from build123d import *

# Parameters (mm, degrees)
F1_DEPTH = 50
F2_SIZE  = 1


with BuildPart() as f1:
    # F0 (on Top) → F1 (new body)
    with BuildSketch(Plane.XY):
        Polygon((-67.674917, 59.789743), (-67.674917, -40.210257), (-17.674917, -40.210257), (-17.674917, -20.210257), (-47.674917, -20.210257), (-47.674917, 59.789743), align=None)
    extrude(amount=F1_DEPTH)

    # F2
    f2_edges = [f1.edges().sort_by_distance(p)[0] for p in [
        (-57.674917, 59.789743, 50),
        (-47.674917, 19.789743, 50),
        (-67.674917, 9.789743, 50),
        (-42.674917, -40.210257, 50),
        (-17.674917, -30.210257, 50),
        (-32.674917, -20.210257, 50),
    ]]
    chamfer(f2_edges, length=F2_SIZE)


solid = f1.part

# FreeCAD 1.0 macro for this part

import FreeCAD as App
import Part
import Sketcher


def edges_at(feature, points):
    """Names of the edges that pass closest to the given points."""
    edges = feature.Shape.Edges
    near = lambda p: min(range(len(edges)), key=lambda i: edges[i].distToShape(Part.Vertex(*p))[0])
    return sorted({f"Edge{near(p) + 1}" for p in points})

doc = App.newDocument("Part")
body = doc.addObject("PartDesign::Body", "Body")

# Sketch on XY plane
sketch1 = doc.addObject("Sketcher::SketchObject", "Sketch")
body.addObject(sketch1)
sketch1.AttachmentSupport = (doc.XY_Plane, [""])
sketch1.MapMode = "FlatFace"
sketch1.addGeometry([
    Part.LineSegment(App.Vector(-68, 60, 0), App.Vector(-68, -40, 0)),  # 0
    Part.LineSegment(App.Vector(-68, -40, 0), App.Vector(-18, -40, 0)),  # 1
    Part.LineSegment(App.Vector(-18, -40, 0), App.Vector(-18, -20, 0)),  # 2
    Part.LineSegment(App.Vector(-18, -20, 0), App.Vector(-48, -20, 0)),  # 3
    Part.LineSegment(App.Vector(-48, -20, 0), App.Vector(-48, 60, 0)),  # 4
    Part.LineSegment(App.Vector(-48, 60, 0), App.Vector(-68, 60, 0)),  # 5
], False)
sketch1.addConstraint([
    Sketcher.Constraint("Coincident", 0, 2, 1, 1),
    Sketcher.Constraint("Coincident", 1, 2, 2, 1),
    Sketcher.Constraint("Coincident", 2, 2, 3, 1),
    Sketcher.Constraint("Coincident", 3, 2, 4, 1),
    Sketcher.Constraint("Coincident", 4, 2, 5, 1),
    Sketcher.Constraint("Coincident", 5, 2, 0, 1),
    Sketcher.Constraint("Vertical", 0),
    Sketcher.Constraint("Horizontal", 1),
    Sketcher.Constraint("Vertical", 2),
    Sketcher.Constraint("Horizontal", 3),
    Sketcher.Constraint("Vertical", 4),
    Sketcher.Constraint("Horizontal", 5),
    Sketcher.Constraint("Equal", 5, 2),
    Sketcher.Constraint("DistanceX", 1, 1, 1, 2, 50.0),
    Sketcher.Constraint("DistanceX", 3, 2, 3, 1, 30.0),
    Sketcher.Constraint("DistanceY", 0, 2, 0, 1, 100.0),
    Sketcher.Constraint("DistanceX", 0, 2, -1, 1, 67.674917),
    Sketcher.Constraint("DistanceY", 0, 2, -1, 1, 40.210257),
])
pad1 = doc.addObject("PartDesign::Pad", "Pad")
body.addObject(pad1)
pad1.Profile = sketch1
pad1.Length = 50
doc.recompute()

chamfer = doc.addObject("PartDesign::Chamfer", "Chamfer")
body.addObject(chamfer)
chamfer.Base = (pad1, edges_at(pad1, [
    (-57.675, 59.79, 50),
    (-47.675, 19.79, 50),
    (-67.675, 9.79, 50),
    (-42.675, -40.21, 50),
    (-17.675, -30.21, 50),
    (-32.675, -20.21, 50),
]))
chamfer.Size = 1

doc.recompute()
